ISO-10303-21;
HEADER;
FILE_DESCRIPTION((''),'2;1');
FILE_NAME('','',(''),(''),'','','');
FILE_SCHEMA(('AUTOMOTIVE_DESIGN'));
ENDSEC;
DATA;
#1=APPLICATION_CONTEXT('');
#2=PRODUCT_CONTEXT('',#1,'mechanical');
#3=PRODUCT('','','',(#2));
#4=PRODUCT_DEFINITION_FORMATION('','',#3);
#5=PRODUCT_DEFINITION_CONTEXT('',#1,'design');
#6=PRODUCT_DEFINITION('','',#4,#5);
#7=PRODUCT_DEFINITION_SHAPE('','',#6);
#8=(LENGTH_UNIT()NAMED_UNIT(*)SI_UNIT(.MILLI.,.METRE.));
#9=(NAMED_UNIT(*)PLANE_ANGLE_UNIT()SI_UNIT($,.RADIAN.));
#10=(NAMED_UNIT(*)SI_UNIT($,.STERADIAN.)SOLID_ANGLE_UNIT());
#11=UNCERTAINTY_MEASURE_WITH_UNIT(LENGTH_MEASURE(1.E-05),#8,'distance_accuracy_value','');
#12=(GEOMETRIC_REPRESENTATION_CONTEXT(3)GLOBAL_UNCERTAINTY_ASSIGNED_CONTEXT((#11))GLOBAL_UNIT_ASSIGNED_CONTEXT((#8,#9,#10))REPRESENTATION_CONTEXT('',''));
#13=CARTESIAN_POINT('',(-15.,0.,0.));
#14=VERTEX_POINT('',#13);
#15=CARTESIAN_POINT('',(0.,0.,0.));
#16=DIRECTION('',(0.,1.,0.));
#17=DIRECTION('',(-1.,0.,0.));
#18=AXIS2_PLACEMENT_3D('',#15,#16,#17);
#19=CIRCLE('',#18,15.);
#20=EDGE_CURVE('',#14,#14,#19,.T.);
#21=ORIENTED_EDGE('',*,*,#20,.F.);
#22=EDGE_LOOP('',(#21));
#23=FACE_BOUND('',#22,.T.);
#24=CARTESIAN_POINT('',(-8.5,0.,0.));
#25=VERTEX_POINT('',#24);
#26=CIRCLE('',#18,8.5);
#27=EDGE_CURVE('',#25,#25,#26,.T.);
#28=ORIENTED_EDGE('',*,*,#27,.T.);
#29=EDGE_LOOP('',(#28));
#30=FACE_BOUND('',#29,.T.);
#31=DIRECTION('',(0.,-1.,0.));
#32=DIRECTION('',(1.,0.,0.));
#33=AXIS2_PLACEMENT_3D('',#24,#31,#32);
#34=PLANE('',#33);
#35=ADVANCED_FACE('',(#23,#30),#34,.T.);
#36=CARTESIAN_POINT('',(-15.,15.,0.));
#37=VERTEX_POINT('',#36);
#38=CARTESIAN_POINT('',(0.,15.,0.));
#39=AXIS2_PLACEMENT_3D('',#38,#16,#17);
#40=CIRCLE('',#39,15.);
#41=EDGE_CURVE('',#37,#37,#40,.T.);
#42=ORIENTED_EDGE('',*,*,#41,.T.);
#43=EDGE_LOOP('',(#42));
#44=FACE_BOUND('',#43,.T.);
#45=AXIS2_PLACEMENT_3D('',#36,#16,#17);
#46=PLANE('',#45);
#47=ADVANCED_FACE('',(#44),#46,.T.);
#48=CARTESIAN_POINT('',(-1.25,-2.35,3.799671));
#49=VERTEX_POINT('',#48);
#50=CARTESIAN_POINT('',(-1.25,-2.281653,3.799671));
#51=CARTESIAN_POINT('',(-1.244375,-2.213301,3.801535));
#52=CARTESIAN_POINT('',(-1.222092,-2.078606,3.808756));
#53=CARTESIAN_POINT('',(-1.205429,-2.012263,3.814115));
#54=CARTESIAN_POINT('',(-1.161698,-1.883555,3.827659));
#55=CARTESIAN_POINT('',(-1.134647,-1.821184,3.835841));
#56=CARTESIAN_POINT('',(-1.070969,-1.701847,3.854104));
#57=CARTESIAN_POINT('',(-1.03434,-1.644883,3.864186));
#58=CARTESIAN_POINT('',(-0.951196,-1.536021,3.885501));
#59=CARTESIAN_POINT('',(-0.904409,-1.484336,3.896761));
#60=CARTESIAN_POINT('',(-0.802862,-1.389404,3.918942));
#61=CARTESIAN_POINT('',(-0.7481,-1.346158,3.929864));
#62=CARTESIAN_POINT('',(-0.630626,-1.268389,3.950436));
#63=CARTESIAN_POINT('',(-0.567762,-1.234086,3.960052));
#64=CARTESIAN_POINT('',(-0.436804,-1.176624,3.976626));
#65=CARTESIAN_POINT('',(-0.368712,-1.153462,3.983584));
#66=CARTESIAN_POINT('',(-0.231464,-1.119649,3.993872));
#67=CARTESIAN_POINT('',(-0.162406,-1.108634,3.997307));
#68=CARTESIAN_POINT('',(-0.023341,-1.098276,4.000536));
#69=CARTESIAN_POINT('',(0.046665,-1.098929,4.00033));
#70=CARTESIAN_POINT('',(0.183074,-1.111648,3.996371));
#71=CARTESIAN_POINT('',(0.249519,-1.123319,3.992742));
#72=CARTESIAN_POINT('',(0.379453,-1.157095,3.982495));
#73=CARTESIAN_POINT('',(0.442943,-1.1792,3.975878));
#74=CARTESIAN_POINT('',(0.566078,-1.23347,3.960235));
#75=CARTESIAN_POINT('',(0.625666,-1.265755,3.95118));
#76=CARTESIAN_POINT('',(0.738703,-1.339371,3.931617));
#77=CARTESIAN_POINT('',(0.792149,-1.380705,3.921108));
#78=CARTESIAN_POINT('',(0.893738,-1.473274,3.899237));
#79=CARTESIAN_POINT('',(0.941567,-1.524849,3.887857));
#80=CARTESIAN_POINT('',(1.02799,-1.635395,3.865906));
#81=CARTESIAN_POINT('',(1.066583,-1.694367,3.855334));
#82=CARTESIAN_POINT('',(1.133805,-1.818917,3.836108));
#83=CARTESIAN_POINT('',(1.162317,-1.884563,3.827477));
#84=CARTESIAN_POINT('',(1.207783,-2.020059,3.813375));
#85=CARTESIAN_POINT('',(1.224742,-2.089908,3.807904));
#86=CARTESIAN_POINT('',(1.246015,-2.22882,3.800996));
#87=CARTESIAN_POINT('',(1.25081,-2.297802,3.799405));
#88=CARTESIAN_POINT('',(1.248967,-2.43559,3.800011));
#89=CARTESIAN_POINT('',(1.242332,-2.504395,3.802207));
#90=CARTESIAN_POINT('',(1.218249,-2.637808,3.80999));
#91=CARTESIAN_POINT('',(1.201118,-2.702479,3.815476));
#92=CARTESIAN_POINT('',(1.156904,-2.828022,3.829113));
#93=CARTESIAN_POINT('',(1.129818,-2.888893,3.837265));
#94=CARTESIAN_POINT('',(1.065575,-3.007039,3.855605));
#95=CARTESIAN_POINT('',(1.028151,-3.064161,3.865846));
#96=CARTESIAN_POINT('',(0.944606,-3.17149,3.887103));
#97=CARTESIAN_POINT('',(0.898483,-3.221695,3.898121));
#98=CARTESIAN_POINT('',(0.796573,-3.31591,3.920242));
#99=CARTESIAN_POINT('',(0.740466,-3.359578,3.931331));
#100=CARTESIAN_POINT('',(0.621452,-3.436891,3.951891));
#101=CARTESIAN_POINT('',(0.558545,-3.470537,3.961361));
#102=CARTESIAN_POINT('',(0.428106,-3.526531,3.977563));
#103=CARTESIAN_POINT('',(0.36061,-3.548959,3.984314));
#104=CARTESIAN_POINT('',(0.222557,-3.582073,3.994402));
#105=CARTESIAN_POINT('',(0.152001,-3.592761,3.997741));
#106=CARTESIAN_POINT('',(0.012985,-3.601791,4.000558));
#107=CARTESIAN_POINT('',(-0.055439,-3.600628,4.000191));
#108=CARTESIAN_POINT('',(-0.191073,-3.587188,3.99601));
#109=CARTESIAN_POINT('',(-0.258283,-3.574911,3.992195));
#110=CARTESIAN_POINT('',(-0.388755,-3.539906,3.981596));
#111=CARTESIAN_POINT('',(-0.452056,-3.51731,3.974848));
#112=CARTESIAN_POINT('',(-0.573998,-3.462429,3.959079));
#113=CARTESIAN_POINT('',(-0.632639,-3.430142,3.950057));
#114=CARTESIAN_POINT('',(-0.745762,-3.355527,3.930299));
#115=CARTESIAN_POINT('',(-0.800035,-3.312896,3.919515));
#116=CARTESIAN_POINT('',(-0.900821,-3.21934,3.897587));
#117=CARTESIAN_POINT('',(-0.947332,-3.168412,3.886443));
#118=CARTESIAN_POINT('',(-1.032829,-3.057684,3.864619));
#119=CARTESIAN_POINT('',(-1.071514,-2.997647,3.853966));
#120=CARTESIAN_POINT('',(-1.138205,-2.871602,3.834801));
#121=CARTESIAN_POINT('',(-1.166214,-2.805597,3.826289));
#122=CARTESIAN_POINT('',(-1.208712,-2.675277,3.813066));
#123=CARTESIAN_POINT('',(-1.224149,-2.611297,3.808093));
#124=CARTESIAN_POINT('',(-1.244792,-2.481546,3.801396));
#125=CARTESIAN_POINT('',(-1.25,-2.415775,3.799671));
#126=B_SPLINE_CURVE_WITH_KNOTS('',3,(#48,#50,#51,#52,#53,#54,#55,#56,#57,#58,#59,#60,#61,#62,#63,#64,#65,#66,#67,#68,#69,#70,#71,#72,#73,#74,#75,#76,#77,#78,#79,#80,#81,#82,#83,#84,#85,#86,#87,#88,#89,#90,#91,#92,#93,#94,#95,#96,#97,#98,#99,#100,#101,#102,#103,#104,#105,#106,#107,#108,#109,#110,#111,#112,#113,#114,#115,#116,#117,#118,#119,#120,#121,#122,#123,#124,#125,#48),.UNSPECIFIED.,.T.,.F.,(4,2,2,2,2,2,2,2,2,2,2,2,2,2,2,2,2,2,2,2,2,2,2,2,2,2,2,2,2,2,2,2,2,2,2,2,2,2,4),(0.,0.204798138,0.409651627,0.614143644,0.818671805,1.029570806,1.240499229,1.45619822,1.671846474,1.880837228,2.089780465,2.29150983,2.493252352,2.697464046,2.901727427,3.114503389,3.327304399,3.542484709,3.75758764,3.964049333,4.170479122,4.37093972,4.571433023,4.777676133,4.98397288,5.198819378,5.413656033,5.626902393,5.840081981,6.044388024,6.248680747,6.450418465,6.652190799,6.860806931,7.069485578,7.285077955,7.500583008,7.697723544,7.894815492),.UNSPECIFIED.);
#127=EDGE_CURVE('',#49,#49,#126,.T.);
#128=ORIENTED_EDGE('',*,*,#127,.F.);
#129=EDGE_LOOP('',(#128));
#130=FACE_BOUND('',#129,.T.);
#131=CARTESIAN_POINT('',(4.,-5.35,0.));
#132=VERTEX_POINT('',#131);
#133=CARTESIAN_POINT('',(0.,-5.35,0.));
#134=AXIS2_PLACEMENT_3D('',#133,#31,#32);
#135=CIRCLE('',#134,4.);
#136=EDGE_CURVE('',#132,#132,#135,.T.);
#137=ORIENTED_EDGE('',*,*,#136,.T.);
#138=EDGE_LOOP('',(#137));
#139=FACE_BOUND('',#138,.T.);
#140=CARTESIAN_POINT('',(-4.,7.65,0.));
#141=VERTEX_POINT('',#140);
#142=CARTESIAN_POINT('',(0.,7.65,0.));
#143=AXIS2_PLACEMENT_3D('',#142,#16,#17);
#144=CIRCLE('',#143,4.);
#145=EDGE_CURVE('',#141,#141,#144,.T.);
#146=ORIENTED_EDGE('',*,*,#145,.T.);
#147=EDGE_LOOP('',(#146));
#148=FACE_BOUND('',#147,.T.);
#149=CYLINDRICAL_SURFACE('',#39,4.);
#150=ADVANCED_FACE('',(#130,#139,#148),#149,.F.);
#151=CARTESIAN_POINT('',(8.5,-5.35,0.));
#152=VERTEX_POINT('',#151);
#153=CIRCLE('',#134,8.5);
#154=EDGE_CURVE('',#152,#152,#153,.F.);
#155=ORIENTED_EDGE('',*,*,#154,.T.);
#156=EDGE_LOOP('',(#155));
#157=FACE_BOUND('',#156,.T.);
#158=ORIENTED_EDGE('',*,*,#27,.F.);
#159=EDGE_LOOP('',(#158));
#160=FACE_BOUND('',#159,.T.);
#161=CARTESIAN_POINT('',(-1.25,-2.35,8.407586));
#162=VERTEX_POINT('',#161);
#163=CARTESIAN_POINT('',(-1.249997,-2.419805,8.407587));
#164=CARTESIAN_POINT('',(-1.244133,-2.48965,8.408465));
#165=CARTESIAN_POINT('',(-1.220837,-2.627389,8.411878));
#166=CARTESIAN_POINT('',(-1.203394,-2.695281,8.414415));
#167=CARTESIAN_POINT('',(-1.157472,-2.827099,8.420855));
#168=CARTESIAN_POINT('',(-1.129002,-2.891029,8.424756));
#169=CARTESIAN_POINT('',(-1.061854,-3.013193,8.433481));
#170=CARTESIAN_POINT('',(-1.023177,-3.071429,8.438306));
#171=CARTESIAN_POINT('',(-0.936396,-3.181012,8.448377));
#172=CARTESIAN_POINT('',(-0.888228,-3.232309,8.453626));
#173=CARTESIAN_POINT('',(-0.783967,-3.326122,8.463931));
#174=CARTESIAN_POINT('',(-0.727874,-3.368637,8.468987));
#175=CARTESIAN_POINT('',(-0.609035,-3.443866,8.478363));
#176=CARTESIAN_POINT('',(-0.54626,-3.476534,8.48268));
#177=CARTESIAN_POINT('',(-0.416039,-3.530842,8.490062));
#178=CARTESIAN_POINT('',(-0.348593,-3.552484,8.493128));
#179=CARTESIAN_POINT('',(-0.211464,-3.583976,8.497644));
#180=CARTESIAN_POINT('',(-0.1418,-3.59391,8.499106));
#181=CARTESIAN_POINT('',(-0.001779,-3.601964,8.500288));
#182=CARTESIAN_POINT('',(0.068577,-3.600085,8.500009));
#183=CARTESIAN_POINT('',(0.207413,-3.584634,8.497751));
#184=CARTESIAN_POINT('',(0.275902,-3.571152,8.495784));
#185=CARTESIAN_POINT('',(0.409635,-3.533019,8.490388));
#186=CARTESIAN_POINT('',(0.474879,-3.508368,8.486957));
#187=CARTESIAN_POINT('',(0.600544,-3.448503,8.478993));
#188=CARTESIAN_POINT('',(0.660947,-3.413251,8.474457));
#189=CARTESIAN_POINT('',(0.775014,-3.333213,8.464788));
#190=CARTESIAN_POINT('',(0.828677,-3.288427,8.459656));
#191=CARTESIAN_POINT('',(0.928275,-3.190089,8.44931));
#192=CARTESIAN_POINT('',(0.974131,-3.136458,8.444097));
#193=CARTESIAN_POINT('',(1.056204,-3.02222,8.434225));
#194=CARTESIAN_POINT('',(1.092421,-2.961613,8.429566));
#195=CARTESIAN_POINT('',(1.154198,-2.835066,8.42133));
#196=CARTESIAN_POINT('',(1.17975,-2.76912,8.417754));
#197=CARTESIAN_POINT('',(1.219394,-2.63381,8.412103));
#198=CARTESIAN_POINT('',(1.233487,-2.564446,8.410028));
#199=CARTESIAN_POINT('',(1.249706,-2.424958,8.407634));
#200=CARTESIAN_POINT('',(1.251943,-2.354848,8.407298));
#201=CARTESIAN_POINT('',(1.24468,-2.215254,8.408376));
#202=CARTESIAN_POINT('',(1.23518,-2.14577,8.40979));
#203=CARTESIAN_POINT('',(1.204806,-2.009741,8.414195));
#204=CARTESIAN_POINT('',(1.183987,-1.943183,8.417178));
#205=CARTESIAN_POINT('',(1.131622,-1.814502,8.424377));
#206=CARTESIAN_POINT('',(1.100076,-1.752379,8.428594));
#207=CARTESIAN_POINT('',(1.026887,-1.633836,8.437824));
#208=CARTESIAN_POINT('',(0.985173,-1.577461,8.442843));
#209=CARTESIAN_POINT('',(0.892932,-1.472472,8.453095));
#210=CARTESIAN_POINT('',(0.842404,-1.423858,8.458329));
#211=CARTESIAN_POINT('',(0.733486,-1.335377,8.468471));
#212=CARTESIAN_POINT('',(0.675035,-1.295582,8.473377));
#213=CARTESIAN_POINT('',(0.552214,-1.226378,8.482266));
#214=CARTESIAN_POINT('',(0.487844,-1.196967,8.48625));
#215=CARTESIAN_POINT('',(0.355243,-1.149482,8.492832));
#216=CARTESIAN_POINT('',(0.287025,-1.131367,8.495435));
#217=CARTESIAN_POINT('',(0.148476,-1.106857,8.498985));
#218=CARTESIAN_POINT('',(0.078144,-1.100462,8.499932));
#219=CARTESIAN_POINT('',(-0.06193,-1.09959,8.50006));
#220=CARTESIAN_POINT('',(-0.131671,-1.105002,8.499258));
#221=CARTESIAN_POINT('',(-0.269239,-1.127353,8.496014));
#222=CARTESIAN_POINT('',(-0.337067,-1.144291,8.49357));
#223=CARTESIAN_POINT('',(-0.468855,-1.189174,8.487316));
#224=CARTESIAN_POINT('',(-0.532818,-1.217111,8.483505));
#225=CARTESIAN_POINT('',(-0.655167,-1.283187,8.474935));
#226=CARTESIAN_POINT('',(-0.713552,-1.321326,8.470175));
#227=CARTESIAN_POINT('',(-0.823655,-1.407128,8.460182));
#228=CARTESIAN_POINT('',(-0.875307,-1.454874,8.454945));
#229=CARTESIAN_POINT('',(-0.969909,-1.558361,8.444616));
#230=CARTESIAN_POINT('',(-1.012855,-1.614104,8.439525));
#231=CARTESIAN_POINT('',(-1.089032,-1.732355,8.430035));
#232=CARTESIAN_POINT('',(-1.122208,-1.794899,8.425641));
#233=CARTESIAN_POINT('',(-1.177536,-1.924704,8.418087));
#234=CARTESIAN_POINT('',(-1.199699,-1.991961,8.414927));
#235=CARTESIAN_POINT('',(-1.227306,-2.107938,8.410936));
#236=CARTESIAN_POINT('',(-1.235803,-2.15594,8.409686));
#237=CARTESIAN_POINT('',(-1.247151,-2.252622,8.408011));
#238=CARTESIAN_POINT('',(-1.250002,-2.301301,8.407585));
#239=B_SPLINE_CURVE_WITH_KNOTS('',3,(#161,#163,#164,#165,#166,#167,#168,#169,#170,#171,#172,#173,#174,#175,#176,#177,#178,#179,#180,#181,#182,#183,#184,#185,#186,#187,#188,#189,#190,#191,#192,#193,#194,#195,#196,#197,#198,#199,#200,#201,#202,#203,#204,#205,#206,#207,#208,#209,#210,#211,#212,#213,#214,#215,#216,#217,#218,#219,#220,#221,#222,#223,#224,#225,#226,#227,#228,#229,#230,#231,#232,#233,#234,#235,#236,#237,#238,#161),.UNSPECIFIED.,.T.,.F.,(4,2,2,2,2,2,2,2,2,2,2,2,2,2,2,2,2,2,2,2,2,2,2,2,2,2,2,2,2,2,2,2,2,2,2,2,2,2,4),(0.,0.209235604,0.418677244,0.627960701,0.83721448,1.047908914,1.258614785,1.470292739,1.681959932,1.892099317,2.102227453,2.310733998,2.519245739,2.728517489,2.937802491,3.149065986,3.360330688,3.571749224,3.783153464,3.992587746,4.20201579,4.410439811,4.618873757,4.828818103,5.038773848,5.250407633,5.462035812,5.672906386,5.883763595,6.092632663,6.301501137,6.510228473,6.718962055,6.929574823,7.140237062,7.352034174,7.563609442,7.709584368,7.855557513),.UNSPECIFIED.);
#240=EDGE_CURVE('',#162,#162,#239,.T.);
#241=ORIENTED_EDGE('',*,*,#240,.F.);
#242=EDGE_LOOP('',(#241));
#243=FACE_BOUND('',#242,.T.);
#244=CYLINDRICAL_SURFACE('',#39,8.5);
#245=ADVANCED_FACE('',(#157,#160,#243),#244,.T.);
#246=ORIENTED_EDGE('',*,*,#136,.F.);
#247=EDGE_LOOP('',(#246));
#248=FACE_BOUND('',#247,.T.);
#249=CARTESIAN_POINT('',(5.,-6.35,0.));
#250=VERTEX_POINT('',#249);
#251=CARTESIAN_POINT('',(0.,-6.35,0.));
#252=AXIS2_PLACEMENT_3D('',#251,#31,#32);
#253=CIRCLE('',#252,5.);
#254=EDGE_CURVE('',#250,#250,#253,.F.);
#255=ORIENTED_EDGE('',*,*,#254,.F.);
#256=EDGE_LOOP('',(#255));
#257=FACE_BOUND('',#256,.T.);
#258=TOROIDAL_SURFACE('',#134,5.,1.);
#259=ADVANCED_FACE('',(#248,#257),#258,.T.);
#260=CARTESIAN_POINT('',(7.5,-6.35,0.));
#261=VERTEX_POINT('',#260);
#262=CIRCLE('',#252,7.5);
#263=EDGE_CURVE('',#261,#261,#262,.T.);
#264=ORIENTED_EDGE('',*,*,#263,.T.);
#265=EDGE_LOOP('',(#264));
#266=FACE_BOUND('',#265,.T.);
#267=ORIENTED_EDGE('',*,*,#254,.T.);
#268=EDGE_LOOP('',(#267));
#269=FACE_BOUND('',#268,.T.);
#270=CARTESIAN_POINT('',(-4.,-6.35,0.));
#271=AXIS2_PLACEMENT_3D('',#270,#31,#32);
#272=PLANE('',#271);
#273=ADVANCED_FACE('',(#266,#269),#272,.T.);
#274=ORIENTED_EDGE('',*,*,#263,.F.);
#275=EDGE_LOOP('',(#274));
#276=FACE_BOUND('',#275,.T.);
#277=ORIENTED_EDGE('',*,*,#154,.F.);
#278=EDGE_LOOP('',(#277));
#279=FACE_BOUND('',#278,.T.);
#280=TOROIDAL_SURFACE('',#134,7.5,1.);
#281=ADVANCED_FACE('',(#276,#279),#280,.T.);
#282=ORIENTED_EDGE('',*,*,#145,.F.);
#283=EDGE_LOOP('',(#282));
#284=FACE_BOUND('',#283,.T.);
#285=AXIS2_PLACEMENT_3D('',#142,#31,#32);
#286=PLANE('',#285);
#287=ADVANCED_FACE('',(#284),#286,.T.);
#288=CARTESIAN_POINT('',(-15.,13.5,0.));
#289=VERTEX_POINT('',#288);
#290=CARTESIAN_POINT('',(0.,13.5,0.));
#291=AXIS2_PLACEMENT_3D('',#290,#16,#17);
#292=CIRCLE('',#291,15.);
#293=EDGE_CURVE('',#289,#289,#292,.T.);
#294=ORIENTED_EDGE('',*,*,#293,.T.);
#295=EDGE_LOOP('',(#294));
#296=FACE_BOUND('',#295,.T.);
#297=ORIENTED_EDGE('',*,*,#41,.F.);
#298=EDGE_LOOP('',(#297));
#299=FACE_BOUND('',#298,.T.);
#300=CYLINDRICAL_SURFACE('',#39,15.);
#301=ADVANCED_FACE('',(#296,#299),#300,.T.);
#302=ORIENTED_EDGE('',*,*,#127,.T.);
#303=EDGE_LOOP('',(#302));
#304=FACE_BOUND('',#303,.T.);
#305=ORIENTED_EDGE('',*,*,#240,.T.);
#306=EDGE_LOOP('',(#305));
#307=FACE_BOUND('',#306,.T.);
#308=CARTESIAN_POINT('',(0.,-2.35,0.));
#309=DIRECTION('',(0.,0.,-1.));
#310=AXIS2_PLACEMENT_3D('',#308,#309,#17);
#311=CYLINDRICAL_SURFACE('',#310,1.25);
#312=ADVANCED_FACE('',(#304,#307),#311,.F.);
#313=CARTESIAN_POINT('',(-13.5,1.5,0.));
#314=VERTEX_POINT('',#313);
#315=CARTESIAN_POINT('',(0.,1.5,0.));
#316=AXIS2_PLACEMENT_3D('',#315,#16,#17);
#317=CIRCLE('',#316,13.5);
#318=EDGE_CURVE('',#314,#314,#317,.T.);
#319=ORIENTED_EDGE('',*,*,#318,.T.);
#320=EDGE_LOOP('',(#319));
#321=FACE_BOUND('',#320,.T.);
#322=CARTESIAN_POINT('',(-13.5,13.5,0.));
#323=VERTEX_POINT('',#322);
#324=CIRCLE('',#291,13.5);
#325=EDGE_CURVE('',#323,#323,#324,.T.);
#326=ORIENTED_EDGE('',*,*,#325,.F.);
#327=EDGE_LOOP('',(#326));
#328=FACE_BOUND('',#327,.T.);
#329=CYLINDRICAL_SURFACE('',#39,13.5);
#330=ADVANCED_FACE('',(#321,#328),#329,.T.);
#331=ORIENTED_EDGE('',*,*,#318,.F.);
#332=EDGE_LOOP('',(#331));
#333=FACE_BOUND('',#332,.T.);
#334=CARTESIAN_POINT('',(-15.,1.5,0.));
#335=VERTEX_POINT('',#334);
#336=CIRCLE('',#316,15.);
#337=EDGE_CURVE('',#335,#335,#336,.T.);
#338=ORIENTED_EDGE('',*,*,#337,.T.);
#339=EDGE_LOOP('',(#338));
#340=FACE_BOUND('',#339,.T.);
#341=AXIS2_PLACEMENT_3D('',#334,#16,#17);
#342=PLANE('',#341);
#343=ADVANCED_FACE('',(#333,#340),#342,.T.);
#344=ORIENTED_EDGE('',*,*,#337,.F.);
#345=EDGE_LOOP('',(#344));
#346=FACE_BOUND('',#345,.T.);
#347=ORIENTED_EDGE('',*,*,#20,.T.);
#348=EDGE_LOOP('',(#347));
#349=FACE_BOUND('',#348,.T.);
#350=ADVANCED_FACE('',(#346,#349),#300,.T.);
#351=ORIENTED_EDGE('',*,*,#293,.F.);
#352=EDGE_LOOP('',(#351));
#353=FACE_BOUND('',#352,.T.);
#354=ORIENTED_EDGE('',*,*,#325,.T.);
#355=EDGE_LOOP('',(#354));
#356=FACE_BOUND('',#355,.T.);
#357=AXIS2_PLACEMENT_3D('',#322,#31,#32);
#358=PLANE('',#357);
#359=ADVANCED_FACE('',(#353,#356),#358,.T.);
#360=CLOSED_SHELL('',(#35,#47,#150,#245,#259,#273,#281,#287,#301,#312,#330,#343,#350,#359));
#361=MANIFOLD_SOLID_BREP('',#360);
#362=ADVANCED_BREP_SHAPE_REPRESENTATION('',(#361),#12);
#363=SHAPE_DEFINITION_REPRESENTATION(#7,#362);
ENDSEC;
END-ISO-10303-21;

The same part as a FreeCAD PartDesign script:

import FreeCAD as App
import Part
import Sketcher

V = App.Vector


def edges_at(feature, points):
    """Names of the edges that pass closest to the given points."""
    edges = feature.Shape.Edges
    near = lambda p: min(range(len(edges)), key=lambda i: edges[i].distToShape(Part.Vertex(*p))[0])
    return sorted({f"Edge{near(p) + 1}" for p in points})


def add_polygon(sketch, points):
    """Adds a closed chain of lines whose ends are joined by coincident constraints."""
    first, n = sketch.GeometryCount, len(points)
    for a, b in zip(points, points[1:] + points[:1]):
        sketch.addGeometry(Part.LineSegment(App.Vector(*a, 0), App.Vector(*b, 0)), False)
    for i in range(n):
        sketch.addConstraint(Sketcher.Constraint("Coincident", first + i, 2, first + (i + 1) % n, 1))

doc = App.newDocument("Part")
body = doc.addObject("PartDesign::Body", "Body")

sketch1 = doc.addObject("Sketcher::SketchObject", "Sketch")
body.addObject(sketch1)
sketch1.AttachmentSupport = (doc.XY_Plane, [""])
sketch1.MapMode = "FlatFace"
add_polygon(sketch1, [(-8.5, 0), (-8.5, -6.3), (-4, -6.3), (-4, 7.7), (0, 7.7), (0, 15), (-15, 15), (-15, 13.5), (-13.5, 13.5), (-13.5, 1.5), (-15, 1.5), (-15, 0)])
sketch1.addConstraint(Sketcher.Constraint("Vertical", 0))
sketch1.addConstraint(Sketcher.Constraint("Horizontal", 1))
sketch1.addConstraint(Sketcher.Constraint("Vertical", 2))
sketch1.addConstraint(Sketcher.Constraint("Horizontal", 3))
sketch1.addConstraint(Sketcher.Constraint("Vertical", 4))
sketch1.addConstraint(Sketcher.Constraint("Horizontal", 5))
sketch1.addConstraint(Sketcher.Constraint("Vertical", 6))
sketch1.addConstraint(Sketcher.Constraint("Horizontal", 7))
sketch1.addConstraint(Sketcher.Constraint("Vertical", 8))
sketch1.addConstraint(Sketcher.Constraint("Horizontal", 9))
sketch1.addConstraint(Sketcher.Constraint("Vertical", 10))
sketch1.addConstraint(Sketcher.Constraint("Horizontal", 11))
sketch1.addConstraint(Sketcher.Constraint("PointOnObject", 3, 2, -2))
sketch1.addConstraint(Sketcher.Constraint("PointOnObject", 10, 2, -1))
sketch1.addConstraint(Sketcher.Constraint("Vertical", 6, 2, 9, 2))
sketch1.addConstraint(Sketcher.Constraint("Equal", 9, 6))
sketch1.addConstraint(Sketcher.Constraint("Equal", 6, 10))
sketch1.addConstraint(Sketcher.Constraint("DistanceX", 3, 1, 3, 2, 4.0))
sketch1.addConstraint(Sketcher.Constraint("DistanceX", 5, 2, 5, 1, 15.0))
sketch1.addConstraint(Sketcher.Constraint("DistanceY", 2, 1, 2, 2, 14.0))
sketch1.addConstraint(Sketcher.Constraint("DistanceY", 8, 2, 8, 1, 12.0))
sketch1.addConstraint(Sketcher.Constraint("DistanceX", 1, 1, 1, 2, 4.5))
sketch1.addConstraint(Sketcher.Constraint("DistanceX", 7, 1, 7, 2, 1.5))
sketch1.addConstraint(Sketcher.Constraint("DistanceY", 0, 2, 0, 1, 6.35))
revolution = doc.addObject("PartDesign::Revolution", "Revolution")
body.addObject(revolution)
revolution.Profile = sketch1
revolution.ReferenceAxis = (sketch1, ["V_Axis"])
revolution.Angle = 360
doc.recompute()

fillet = doc.addObject("PartDesign::Fillet", "Fillet")
body.addObject(fillet)
fillet.Base = (revolution, edges_at(revolution, [(8.5, -6.35, 0), (4, -6.35, 0)]))
fillet.Radius = 1

sketch2 = doc.addObject("Sketcher::SketchObject", "Sketch001")
body.addObject(sketch2)
sketch2.AttachmentSupport = (doc.YZ_Plane, [""])
sketch2.MapMode = "FlatFace"
add_polygon(sketch2, [(-2.4, 8.5), (-2.4, 0), (-1.1, 0), (-1.1, 8.5)])
sketch2.addGeometry(Part.LineSegment(V(-2.4, 0, 0), V(-2.4, 8.5, 0)), True)
sketch2.addConstraint(Sketcher.Constraint("Vertical", 0))
sketch2.addConstraint(Sketcher.Constraint("Horizontal", 1))
sketch2.addConstraint(Sketcher.Constraint("Vertical", 2))
sketch2.addConstraint(Sketcher.Constraint("Horizontal", 3))
sketch2.addConstraint(Sketcher.Constraint("Vertical", 4))
sketch2.addConstraint(Sketcher.Constraint("Coincident", 4, 1, 0, 2))
sketch2.addConstraint(Sketcher.Constraint("PointOnObject", 0, 2, -1))
sketch2.addConstraint(Sketcher.Constraint("Horizontal", 2, 2, 4, 2))
sketch2.addConstraint(Sketcher.Constraint("DistanceY", 0, 2, 0, 1, 8.5))
sketch2.addConstraint(Sketcher.Constraint("DistanceX", 1, 1, 1, 2, 1.25))
sketch2.addConstraint(Sketcher.Constraint("DistanceX", 1, 2, -1, 1, 1.1))
groove = doc.addObject("PartDesign::Groove", "Groove")
body.addObject(groove)
groove.Profile = sketch2
groove.ReferenceAxis = (sketch2, ["Axis0"])
groove.Angle = 360

doc.recompute()
